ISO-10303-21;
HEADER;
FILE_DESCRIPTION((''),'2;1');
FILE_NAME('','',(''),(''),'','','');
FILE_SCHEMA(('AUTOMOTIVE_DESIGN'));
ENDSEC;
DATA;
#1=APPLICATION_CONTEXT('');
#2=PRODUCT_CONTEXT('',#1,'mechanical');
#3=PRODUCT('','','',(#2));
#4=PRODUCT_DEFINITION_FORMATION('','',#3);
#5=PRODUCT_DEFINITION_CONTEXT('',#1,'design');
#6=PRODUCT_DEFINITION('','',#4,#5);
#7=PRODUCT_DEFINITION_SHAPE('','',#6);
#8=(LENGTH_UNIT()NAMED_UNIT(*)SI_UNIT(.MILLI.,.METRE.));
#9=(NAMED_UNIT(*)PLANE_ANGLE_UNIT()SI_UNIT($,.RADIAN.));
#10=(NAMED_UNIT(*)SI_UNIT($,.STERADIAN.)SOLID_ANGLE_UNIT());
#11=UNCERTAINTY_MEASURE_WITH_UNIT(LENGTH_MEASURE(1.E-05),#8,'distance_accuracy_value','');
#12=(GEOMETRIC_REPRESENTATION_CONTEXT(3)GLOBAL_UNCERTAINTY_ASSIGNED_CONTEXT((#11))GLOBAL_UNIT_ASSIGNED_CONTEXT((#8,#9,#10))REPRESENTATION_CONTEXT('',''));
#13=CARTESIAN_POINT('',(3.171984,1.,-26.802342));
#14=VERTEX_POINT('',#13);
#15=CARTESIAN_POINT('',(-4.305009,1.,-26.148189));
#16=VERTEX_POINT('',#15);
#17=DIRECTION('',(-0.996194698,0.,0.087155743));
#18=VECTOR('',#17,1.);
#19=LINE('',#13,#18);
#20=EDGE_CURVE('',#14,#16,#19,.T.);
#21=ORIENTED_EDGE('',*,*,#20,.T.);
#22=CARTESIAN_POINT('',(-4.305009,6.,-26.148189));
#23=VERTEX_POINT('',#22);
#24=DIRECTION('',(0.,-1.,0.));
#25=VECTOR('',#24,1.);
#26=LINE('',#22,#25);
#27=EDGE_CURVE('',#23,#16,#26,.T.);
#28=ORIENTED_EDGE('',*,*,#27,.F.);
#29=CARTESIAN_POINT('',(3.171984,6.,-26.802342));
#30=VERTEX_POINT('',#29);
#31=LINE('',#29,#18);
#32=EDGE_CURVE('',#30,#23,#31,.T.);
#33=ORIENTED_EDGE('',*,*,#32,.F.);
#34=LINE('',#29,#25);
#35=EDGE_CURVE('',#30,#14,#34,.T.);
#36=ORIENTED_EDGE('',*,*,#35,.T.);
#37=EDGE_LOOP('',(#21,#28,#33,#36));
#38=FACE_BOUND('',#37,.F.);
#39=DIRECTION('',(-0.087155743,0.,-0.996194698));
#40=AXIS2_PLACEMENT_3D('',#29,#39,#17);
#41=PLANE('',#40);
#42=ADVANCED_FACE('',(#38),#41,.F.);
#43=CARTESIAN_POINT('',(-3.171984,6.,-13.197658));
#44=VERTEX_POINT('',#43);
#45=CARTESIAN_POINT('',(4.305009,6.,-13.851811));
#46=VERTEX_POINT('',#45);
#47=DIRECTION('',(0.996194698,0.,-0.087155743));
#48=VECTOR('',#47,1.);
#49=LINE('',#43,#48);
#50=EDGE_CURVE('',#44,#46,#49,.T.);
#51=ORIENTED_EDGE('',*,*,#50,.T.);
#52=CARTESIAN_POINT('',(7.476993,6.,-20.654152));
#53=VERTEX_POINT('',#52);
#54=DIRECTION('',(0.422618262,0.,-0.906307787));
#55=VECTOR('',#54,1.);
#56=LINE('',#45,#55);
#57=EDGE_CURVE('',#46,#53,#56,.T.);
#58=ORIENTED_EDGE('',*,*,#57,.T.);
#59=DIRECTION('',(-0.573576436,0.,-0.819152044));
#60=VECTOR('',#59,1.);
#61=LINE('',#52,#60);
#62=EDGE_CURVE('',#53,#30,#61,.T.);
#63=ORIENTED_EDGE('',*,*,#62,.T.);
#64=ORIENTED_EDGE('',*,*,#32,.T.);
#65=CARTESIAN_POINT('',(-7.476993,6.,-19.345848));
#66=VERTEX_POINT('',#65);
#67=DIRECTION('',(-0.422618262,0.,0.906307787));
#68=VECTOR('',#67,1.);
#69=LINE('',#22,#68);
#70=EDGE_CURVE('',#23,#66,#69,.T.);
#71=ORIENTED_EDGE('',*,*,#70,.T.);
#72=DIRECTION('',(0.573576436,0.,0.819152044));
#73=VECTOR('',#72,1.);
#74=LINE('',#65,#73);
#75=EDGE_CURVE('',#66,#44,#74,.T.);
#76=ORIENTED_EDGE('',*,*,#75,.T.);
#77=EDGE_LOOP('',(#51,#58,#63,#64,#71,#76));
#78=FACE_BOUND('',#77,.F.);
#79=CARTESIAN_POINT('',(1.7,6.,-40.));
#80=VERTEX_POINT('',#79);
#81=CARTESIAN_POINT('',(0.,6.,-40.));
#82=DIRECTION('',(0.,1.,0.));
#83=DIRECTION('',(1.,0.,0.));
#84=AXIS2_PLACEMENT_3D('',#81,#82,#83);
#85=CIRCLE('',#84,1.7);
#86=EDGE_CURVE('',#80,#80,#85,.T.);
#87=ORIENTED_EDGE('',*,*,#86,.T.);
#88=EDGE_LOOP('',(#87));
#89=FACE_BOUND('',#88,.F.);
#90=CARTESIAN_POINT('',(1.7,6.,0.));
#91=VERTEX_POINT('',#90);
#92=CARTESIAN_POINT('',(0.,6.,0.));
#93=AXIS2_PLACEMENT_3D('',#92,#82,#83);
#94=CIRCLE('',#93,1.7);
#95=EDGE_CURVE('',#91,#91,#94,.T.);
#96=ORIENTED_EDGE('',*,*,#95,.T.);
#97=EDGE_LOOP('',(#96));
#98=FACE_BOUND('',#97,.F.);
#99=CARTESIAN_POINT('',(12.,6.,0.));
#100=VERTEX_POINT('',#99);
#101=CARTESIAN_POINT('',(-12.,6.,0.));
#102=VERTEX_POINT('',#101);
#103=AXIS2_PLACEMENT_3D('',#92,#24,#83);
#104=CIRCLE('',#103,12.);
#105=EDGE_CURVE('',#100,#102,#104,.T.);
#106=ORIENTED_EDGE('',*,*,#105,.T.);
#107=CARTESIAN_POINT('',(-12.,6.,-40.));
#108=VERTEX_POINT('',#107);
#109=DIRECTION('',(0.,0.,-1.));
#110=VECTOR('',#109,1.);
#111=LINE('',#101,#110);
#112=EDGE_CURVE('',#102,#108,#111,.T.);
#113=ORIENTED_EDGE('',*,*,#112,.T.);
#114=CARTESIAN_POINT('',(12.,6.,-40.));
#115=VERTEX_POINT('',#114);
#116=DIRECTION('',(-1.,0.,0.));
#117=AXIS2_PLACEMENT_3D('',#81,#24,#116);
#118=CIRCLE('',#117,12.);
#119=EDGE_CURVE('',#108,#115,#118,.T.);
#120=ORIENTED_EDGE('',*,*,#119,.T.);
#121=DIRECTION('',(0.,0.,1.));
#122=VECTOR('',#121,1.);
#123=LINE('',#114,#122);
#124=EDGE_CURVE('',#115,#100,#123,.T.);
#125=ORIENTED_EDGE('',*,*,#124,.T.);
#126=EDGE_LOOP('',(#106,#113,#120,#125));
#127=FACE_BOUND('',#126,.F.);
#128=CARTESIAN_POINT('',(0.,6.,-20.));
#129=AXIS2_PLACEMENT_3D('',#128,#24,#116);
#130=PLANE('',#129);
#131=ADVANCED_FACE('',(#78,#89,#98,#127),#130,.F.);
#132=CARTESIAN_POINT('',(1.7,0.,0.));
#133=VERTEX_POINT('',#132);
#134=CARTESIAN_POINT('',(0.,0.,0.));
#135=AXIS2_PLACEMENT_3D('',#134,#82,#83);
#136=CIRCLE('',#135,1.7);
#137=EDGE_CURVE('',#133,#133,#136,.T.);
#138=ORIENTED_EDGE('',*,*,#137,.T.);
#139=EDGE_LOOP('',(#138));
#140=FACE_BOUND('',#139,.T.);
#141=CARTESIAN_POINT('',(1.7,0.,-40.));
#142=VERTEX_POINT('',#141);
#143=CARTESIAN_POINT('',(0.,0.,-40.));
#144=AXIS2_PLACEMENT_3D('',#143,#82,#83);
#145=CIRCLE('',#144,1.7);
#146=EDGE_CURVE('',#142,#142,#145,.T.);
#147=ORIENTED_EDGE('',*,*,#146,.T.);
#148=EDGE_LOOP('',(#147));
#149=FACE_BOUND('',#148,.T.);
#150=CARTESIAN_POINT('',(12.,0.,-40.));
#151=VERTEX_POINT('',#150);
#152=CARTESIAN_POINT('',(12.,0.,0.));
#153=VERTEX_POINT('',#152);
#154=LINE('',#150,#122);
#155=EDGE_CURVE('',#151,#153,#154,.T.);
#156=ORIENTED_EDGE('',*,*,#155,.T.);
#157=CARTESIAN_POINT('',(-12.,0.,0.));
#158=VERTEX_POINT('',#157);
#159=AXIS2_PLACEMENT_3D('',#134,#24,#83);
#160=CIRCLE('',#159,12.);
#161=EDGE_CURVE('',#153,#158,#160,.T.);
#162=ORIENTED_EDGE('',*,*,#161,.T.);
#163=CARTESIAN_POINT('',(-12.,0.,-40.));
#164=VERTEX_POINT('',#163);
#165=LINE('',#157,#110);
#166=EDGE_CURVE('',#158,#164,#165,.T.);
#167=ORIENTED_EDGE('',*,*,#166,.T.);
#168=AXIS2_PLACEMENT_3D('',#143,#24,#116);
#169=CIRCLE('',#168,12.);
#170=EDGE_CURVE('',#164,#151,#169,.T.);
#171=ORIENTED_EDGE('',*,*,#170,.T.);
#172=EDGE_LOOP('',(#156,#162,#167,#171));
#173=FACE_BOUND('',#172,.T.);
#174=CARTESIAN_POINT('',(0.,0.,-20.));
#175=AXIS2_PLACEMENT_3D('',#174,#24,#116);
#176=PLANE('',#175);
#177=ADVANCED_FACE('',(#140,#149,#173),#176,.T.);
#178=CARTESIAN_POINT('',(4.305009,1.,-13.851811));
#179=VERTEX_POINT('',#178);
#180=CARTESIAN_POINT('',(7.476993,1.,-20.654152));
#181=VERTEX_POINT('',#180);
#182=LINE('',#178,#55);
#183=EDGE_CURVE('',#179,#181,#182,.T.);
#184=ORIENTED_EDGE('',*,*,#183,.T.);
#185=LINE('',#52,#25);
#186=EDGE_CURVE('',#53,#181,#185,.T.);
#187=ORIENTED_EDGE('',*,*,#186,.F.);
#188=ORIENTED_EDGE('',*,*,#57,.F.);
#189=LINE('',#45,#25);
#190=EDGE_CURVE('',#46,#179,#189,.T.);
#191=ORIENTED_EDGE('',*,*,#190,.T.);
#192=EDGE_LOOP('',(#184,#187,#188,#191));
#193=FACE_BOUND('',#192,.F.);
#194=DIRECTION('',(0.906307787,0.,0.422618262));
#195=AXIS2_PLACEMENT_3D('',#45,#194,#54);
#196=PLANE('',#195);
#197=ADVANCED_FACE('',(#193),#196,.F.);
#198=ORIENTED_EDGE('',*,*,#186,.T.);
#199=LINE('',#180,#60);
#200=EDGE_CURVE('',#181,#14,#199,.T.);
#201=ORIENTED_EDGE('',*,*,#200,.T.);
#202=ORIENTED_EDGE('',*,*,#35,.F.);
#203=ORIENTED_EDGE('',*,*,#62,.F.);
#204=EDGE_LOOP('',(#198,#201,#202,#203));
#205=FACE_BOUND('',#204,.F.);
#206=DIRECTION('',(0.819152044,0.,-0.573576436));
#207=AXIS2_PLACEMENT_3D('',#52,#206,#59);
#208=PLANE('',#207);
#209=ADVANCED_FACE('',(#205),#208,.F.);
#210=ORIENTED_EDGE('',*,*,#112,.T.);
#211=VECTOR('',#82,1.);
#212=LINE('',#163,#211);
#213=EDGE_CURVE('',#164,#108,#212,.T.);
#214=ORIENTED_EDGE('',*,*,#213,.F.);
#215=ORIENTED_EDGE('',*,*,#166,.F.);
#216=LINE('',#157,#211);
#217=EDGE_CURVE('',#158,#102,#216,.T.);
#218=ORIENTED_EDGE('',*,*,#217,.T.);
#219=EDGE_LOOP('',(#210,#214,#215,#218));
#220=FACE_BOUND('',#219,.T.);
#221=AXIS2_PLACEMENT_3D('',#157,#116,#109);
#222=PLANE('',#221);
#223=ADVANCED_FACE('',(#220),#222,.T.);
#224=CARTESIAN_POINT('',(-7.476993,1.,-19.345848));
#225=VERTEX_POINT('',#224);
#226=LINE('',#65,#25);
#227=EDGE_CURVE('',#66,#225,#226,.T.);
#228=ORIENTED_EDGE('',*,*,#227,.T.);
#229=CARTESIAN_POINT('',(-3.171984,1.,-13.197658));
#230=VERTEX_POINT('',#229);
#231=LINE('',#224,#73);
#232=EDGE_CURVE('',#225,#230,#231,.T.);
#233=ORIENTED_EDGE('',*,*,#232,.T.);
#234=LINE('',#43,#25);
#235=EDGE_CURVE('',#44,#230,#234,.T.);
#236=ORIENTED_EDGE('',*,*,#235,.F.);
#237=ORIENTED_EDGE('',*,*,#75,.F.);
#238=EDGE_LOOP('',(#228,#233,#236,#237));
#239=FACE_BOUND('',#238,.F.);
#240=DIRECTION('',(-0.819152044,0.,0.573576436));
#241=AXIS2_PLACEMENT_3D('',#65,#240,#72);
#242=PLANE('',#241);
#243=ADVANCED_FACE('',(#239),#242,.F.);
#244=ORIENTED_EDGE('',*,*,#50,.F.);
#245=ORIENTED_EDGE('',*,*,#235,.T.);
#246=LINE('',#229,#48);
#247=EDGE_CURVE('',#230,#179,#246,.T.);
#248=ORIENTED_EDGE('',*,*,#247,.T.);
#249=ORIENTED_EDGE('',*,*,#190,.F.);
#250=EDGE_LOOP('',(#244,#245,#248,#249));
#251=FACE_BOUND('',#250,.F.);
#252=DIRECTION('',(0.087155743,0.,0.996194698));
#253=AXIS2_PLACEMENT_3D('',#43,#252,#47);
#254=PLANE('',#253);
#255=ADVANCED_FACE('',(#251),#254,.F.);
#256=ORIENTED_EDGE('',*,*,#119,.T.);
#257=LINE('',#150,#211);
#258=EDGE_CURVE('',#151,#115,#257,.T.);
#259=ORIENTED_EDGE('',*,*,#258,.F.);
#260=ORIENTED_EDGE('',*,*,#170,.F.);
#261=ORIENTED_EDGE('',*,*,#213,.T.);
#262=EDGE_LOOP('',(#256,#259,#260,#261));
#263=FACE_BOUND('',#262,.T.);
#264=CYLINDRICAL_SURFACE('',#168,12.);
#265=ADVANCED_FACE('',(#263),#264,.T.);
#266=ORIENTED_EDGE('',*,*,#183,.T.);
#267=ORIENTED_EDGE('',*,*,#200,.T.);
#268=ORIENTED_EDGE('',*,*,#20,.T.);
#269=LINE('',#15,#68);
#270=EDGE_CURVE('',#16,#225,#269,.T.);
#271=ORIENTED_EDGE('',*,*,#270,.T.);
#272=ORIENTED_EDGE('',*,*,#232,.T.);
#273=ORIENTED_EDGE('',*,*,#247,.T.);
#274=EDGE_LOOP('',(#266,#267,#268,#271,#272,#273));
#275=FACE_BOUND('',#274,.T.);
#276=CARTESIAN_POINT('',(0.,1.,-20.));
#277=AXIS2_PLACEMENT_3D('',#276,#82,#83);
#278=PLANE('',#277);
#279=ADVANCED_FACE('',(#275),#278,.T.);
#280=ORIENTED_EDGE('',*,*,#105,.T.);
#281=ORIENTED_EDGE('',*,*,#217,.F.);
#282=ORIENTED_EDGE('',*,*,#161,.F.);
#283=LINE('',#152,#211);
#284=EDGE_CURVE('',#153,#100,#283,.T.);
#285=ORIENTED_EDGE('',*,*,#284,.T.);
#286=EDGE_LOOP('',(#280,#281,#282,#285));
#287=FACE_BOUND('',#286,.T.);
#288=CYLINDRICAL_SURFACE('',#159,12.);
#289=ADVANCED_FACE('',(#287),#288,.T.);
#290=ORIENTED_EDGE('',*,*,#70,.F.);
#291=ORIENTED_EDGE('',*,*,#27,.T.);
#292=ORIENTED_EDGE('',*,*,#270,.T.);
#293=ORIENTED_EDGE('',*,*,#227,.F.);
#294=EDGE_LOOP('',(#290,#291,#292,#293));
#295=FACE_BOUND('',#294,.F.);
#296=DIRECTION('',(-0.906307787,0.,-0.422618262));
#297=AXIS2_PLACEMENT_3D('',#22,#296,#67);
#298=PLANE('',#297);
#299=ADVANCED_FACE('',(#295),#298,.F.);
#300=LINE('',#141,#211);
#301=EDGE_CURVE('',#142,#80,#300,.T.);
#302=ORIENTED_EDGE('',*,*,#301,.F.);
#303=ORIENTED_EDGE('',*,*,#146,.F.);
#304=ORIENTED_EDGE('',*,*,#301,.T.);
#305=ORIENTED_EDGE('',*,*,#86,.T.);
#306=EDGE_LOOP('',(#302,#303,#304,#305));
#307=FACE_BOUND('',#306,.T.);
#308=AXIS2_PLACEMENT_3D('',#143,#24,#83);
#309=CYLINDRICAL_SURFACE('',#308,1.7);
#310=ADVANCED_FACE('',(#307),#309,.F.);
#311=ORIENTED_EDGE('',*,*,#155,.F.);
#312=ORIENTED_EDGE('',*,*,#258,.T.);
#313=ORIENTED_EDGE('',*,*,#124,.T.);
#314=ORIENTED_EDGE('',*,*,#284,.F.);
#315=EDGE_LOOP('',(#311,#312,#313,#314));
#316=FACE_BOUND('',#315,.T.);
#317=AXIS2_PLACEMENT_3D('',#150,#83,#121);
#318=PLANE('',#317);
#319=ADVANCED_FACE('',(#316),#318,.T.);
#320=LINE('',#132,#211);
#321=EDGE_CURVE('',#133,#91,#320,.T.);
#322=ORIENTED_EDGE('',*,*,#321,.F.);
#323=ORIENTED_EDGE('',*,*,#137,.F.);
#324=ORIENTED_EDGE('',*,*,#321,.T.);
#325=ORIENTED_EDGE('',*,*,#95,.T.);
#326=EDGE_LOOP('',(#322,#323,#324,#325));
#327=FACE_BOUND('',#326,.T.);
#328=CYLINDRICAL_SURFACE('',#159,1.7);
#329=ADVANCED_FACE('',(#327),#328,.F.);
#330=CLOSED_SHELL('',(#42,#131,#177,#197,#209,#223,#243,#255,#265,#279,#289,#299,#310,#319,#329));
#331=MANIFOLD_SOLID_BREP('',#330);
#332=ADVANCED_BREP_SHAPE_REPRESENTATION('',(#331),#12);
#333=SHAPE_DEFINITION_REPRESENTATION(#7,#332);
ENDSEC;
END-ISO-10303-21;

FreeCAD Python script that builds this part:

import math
import FreeCAD as App
import Part
import Sketcher

V = App.Vector
Q = App.Units.Quantity

doc = App.newDocument("Part")
body = doc.addObject("PartDesign::Body", "Body")

# Sketch on XZ plane
sketch1 = body.newObject("Sketcher::SketchObject", "Sketch")
sketch1.AttachmentSupport = (doc.getObject("XZ_Plane"), [""])
sketch1.MapMode = "FlatFace"
sketch1.addGeometry([
    Part.LineSegment(V(-12, -40, 0), V(-12, 0, 0)),  # 0
    Part.ArcOfCircle(Part.Circle(V(0, 0, 0), V(0, 0, 1), 12), math.radians(0), math.radians(180)),  # 1
    Part.LineSegment(V(12, 0, 0), V(12, -40, 0)),  # 2
    Part.ArcOfCircle(Part.Circle(V(0, -40, 0), V(0, 0, 1), 12), math.radians(180), math.radians(360)),  # 3
    Part.Circle(V(0, 0, 0), V(0, 0, 1), 1.7),  # 4
    Part.Circle(V(0, -40, 0), V(0, 0, 1), 1.7),  # 5
], False)
sketch1.addConstraint([
    Sketcher.Constraint("Tangent", 0, 2, 1, 2),
    Sketcher.Constraint("Tangent", 1, 1, 2, 1),
    Sketcher.Constraint("Tangent", 2, 2, 3, 2),
    Sketcher.Constraint("Tangent", 3, 1, 0, 1),
    Sketcher.Constraint("Vertical", 0),
    Sketcher.Constraint("Vertical", 2),
    Sketcher.Constraint("Coincident", 1, 3, -1, 1),
    Sketcher.Constraint("Coincident", 4, 3, -1, 1),
    Sketcher.Constraint("Coincident", 5, 3, 3, 3),
    Sketcher.Constraint("Equal", 4, 5),
    Sketcher.Constraint("Radius", 1, Q("12 mm")),
    Sketcher.Constraint("Diameter", 4, Q("3.4 mm")),
    Sketcher.Constraint("DistanceY", 0, 1, 0, 2, Q("40 mm")),
])
pad1 = body.newObject("PartDesign::Pad", "Pad")
pad1.Profile = sketch1
pad1.Length = 6
pad1.Reversed = True

# Sketch on XZ plane
sketch2 = body.newObject("Sketcher::SketchObject", "Sketch001")
sketch2.AttachmentSupport = (doc.getObject("XZ_Plane"), [""])
sketch2.MapMode = "FlatFace"
sketch2.AttachmentOffset = App.Placement(V(0, 0, -6), App.Rotation())
sketch2.addGeometry([
    Part.LineSegment(V(4, -14, 0), V(7, -21, 0)),  # 0
    Part.LineSegment(V(7, -21, 0), V(3, -27, 0)),  # 1
    Part.LineSegment(V(3, -27, 0), V(-4, -26, 0)),  # 2
    Part.LineSegment(V(-4, -26, 0), V(-7, -19, 0)),  # 3
    Part.LineSegment(V(-7, -19, 0), V(-3, -13, 0)),  # 4
    Part.LineSegment(V(-3, -13, 0), V(4, -14, 0)),  # 5
], False)
sketch2.addConstraint([
    Sketcher.Constraint("Coincident", 0, 2, 1, 1),
    Sketcher.Constraint("Coincident", 1, 2, 2, 1),
    Sketcher.Constraint("Coincident", 2, 2, 3, 1),
    Sketcher.Constraint("Coincident", 3, 2, 4, 1),
    Sketcher.Constraint("Coincident", 4, 2, 5, 1),
    Sketcher.Constraint("Coincident", 5, 2, 0, 1),
    Sketcher.Constraint("Parallel", 0, 3),
    Sketcher.Constraint("Parallel", 1, 4),
    Sketcher.Constraint("Parallel", 2, 5),
    Sketcher.Constraint("Equal", 0, 1),
    Sketcher.Constraint("Equal", 1, 2),
    Sketcher.Constraint("Equal", 2, 3),
    Sketcher.Constraint("Angle", 0, Q("-65 deg")),
    Sketcher.Constraint("Angle", 1, Q("-125 deg")),
    Sketcher.Constraint("Angle", 2, Q("175 deg")),
    Sketcher.Constraint("DistanceX", 2, 2, 0, 2, Q("11.782001 mm")),
    Sketcher.Constraint("DistanceY", 1, 2, -1, 1, Q("26.802342 mm")),
    Sketcher.Constraint("DistanceX", 2, 2, -1, 1, Q("4.305009 mm")),
])
pocket1 = body.newObject("PartDesign::Pocket", "Pocket")
pocket1.Profile = sketch2
pocket1.Length = 5
pocket1.Reversed = True

doc.recompute()
